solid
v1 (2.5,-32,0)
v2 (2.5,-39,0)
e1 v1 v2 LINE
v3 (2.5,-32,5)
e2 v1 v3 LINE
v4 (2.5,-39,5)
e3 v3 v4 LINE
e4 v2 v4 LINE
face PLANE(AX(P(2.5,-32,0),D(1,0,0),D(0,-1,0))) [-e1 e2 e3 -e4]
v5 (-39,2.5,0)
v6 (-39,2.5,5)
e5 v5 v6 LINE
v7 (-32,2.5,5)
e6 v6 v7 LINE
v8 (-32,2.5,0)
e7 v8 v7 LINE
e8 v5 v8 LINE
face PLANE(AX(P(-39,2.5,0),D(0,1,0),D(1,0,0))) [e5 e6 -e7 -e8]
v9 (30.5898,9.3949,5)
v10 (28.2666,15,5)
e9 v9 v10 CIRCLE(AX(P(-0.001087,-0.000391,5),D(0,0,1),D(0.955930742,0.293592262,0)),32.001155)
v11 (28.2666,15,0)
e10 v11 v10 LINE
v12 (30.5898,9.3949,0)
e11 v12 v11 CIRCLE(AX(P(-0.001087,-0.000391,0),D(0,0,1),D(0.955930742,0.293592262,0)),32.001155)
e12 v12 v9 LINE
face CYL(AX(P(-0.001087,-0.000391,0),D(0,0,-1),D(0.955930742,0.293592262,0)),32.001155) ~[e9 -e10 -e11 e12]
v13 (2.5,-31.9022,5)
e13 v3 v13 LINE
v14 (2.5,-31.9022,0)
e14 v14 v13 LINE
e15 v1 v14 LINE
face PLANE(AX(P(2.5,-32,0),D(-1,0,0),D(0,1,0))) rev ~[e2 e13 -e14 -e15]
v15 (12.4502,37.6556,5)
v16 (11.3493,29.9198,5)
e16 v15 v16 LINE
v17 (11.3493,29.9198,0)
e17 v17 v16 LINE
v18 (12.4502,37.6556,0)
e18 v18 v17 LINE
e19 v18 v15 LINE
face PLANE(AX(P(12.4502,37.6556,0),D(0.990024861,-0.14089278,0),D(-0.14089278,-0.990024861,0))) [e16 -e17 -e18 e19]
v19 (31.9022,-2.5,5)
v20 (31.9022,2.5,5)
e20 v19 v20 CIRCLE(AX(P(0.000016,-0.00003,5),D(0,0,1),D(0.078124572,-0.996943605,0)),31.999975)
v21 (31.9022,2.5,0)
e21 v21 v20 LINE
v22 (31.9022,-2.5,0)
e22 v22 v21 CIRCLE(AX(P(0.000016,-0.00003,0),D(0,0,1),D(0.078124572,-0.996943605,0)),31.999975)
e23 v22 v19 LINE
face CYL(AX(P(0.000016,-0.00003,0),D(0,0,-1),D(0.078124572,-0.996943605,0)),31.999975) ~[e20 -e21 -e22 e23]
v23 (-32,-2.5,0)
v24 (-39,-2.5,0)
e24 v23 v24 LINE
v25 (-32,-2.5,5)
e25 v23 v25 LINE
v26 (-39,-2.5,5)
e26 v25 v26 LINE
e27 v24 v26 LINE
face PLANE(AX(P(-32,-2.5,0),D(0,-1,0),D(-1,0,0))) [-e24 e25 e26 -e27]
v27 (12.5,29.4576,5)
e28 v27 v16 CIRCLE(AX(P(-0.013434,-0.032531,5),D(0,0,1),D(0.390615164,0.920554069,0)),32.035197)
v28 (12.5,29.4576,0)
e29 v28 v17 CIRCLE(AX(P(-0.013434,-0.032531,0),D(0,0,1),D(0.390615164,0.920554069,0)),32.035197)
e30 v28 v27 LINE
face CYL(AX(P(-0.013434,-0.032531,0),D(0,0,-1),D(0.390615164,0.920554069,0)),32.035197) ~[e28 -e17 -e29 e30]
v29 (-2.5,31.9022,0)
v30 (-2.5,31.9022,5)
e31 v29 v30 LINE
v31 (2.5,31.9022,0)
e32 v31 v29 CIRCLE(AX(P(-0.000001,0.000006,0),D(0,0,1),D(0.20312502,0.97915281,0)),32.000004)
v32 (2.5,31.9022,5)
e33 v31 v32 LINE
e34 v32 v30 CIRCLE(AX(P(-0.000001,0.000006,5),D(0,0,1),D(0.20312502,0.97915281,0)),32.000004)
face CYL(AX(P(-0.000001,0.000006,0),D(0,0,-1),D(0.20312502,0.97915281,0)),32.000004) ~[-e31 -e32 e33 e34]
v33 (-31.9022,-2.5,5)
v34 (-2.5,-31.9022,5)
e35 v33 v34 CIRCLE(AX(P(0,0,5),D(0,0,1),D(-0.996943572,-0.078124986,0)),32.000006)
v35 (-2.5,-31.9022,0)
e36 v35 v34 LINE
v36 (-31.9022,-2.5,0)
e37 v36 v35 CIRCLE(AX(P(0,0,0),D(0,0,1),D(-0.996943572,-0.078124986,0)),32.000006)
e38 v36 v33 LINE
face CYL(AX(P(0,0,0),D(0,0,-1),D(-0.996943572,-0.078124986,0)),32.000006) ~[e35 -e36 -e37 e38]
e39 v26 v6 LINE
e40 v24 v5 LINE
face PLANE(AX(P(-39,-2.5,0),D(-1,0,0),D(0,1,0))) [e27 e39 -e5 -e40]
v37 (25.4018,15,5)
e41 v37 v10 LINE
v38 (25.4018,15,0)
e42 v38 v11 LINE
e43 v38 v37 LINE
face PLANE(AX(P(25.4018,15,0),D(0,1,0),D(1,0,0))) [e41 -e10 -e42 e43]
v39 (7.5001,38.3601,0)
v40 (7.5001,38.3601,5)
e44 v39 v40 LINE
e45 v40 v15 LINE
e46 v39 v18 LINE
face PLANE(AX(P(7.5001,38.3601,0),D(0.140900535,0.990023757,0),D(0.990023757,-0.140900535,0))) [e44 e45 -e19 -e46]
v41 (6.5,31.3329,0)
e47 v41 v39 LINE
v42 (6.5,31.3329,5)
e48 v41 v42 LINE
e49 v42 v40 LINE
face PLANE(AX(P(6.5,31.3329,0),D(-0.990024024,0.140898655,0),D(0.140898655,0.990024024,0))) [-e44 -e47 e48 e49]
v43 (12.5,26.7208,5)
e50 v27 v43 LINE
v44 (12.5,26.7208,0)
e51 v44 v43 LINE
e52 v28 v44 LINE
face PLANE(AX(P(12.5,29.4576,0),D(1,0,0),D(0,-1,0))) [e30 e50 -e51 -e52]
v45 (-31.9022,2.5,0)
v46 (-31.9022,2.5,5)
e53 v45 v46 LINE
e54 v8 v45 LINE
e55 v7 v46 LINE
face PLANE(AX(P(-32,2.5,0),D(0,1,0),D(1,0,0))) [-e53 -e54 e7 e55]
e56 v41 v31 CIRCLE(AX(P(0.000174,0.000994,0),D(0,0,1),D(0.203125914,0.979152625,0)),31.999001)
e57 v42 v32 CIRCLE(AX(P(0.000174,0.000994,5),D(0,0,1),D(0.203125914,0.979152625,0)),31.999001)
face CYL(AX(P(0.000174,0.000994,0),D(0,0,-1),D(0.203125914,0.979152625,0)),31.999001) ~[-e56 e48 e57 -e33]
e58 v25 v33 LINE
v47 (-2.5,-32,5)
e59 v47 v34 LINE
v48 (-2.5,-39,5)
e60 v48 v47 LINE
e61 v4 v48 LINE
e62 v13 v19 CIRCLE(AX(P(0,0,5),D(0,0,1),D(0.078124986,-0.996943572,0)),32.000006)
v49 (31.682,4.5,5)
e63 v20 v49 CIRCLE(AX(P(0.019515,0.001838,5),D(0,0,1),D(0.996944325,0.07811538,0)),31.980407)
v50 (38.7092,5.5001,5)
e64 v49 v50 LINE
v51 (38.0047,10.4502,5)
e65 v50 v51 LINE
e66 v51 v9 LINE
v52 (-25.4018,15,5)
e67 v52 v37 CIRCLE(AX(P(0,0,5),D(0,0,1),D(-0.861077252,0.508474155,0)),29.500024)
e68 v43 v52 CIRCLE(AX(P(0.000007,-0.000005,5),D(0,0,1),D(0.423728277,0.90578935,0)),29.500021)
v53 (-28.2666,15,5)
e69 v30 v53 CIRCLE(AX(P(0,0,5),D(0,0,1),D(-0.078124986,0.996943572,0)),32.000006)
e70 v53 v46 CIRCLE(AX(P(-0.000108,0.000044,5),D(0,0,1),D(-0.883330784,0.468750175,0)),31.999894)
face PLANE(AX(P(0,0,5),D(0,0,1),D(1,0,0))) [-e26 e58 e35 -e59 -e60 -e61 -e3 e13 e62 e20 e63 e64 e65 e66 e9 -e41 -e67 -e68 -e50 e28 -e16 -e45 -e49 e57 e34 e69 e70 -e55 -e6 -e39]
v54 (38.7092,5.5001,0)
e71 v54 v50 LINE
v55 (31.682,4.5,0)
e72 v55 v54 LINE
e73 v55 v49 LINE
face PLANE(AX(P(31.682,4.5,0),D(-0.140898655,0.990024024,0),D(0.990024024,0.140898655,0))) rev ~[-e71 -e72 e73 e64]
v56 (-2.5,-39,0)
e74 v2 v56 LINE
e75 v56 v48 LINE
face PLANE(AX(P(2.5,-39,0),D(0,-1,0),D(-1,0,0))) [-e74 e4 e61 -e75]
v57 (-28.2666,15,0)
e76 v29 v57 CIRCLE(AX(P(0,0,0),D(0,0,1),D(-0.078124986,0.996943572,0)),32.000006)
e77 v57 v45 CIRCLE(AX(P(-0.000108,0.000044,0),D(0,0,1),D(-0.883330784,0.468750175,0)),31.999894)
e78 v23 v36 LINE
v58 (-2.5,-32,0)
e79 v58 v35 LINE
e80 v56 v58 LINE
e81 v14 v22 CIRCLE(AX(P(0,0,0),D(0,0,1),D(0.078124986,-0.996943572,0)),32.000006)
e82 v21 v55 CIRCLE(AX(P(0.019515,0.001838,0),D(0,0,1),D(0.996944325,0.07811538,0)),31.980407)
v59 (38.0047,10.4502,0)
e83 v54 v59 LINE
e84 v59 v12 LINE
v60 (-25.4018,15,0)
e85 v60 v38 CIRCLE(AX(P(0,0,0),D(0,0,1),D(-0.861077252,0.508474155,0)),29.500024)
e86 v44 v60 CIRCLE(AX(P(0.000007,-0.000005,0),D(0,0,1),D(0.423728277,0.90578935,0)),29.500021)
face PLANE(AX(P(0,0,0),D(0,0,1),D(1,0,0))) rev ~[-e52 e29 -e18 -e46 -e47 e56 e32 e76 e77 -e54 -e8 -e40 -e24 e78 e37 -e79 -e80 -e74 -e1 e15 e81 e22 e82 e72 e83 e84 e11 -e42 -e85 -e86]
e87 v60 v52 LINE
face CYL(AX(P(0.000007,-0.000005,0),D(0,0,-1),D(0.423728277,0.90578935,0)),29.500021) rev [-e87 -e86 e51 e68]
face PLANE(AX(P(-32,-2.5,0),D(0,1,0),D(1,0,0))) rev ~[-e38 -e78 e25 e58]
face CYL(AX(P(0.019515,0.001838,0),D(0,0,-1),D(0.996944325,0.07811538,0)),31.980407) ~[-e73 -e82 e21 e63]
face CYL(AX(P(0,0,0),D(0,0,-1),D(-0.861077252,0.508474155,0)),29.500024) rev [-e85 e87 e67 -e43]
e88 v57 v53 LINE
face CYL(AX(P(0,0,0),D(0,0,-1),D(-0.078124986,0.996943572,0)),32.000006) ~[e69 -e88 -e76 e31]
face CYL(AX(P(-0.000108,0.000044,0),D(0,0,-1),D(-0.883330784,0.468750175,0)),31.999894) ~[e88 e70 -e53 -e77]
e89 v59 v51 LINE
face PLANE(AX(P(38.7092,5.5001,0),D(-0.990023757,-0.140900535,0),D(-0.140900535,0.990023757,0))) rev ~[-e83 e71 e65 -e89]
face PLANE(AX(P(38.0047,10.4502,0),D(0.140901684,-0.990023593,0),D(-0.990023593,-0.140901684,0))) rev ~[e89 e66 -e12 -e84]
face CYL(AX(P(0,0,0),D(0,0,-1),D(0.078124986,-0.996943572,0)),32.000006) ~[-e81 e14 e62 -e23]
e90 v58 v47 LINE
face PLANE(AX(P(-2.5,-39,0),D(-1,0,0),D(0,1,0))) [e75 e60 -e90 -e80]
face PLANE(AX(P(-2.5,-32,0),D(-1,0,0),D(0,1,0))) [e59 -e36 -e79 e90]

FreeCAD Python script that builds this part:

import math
import FreeCAD as App
import Part
import Sketcher
Q = App.Units.Quantity

doc = App.newDocument("Part")
params = doc.addObject("Spreadsheet::Sheet", "Params")
for row, (alias, value) in enumerate([
    ("sketch1_width", "5 mm"),
    ("sketch1_length", "5 mm"),
    ("sketch1_radius", "32 mm"),
    ("sketch1_radius2", "29.5 mm"),
    ("pad1_length", "5 mm"),
], start=1):
    params.set(f"A{row}", alias)
    params.set(f"B{row}", "=" + value)
    params.setAlias(f"B{row}", alias)

body = doc.addObject("PartDesign::Body", "Body")

# Sketch on XY plane
sketch1 = doc.addObject("Sketcher::SketchObject", "Sketch")
body.addObject(sketch1)
sketch1.AttachmentSupport = (doc.XY_Plane, [""])
sketch1.MapMode = "FlatFace"
sketch1.addGeometry([
    Part.ArcOfCircle(Part.Circle(App.Vector(0, 0, 0), App.Vector(0, 0, 1), 29.5), math.radians(149), math.radians(391)),  # 0
    Part.ArcOfCircle(Part.Circle(App.Vector(0, 0, 0), App.Vector(0, 0, 1), 29.5), math.radians(65), math.radians(149)),  # 1
    Part.LineSegment(App.Vector(12.5, 26.7, 0), App.Vector(12.5, 29.5, 0)),  # 2
    Part.ArcOfCircle(Part.Circle(App.Vector(0, 0, 0), App.Vector(0, 0, 1), 32), math.radians(67.01), math.radians(69.23)),  # 3
    Part.LineSegment(App.Vector(11.3, 29.9, 0), App.Vector(12.5, 37.7, 0)),  # 4
    Part.LineSegment(App.Vector(12.5, 37.7, 0), App.Vector(7.5, 38.4, 0)),  # 5
    Part.LineSegment(App.Vector(7.5, 38.4, 0), App.Vector(6.5, 31.3, 0)),  # 6
    Part.ArcOfCircle(Part.Circle(App.Vector(0, 0, 0), App.Vector(0, 0, 1), 32), math.radians(78.28), math.radians(85.52)),  # 7
    Part.ArcOfCircle(Part.Circle(App.Vector(0, 0, 0), App.Vector(0, 0, 1), 32), math.radians(85.52), math.radians(94.48)),  # 8
    Part.ArcOfCircle(Part.Circle(App.Vector(0, 0, 0), App.Vector(0, 0, 1), 32), math.radians(94), math.radians(152)),  # 9
    Part.ArcOfCircle(Part.Circle(App.Vector(0, 0, 0), App.Vector(0, 0, 1), 32), math.radians(152), math.radians(176)),  # 10
    Part.LineSegment(App.Vector(-31.9, 2.5, 0), App.Vector(-39, 2.5, 0)),  # 11
    Part.LineSegment(App.Vector(-39, 2.5, 0), App.Vector(-39, -2.5, 0)),  # 12
    Part.LineSegment(App.Vector(-39, -2.5, 0), App.Vector(-31.9, -2.5, 0)),  # 13
    Part.ArcOfCircle(Part.Circle(App.Vector(0, 0, 0), App.Vector(0, 0, 1), 32), math.radians(-176), math.radians(-94)),  # 14
    Part.LineSegment(App.Vector(-2.5, -31.9, 0), App.Vector(-2.5, -39, 0)),  # 15
    Part.LineSegment(App.Vector(-2.5, -39, 0), App.Vector(2.5, -39, 0)),  # 16
    Part.LineSegment(App.Vector(2.5, -39, 0), App.Vector(2.5, -31.9, 0)),  # 17
    Part.ArcOfCircle(Part.Circle(App.Vector(0, 0, 0), App.Vector(0, 0, 1), 32), math.radians(-86), math.radians(-4)),  # 18
    Part.ArcOfCircle(Part.Circle(App.Vector(0, 0, 0), App.Vector(0, 0, 1), 32), math.radians(-4.48), math.radians(4.48)),  # 19
    Part.ArcOfCircle(Part.Circle(App.Vector(0, 0, 0), App.Vector(0, 0, 1), 32), math.radians(4.48), math.radians(8.09)),  # 20
    Part.LineSegment(App.Vector(31.7, 4.5, 0), App.Vector(38.7, 5.5, 0)),  # 21
    Part.LineSegment(App.Vector(38.7, 5.5, 0), App.Vector(38, 10.5, 0)),  # 22
    Part.LineSegment(App.Vector(38, 10.5, 0), App.Vector(30.6, 9.4, 0)),  # 23
    Part.ArcOfCircle(Part.Circle(App.Vector(0, 0, 0), App.Vector(0, 0, 1), 32), math.radians(17.07), math.radians(27.95)),  # 24
    Part.LineSegment(App.Vector(28.3, 15, 0), App.Vector(25.4, 15, 0)),  # 25
], False)
sketch1.addConstraint([
    Sketcher.Constraint("Tangent", 0, 1, 1, 2),
    Sketcher.Constraint("Coincident", 1, 1, 2, 1),
    Sketcher.Constraint("Coincident", 2, 2, 3, 1),
    Sketcher.Constraint("Coincident", 3, 2, 4, 1),
    Sketcher.Constraint("Coincident", 4, 2, 5, 1),
    Sketcher.Constraint("Coincident", 5, 2, 6, 1),
    Sketcher.Constraint("Coincident", 6, 2, 7, 1),
    Sketcher.Constraint("Tangent", 7, 2, 8, 1),
    Sketcher.Constraint("Tangent", 8, 2, 9, 1),
    Sketcher.Constraint("Tangent", 9, 2, 10, 1),
    Sketcher.Constraint("Coincident", 10, 2, 11, 1),
    Sketcher.Constraint("Coincident", 11, 2, 12, 1),
    Sketcher.Constraint("Coincident", 12, 2, 13, 1),
    Sketcher.Constraint("Coincident", 13, 2, 14, 1),
    Sketcher.Constraint("Coincident", 14, 2, 15, 1),
    Sketcher.Constraint("Coincident", 15, 2, 16, 1),
    Sketcher.Constraint("Coincident", 16, 2, 17, 1),
    Sketcher.Constraint("Coincident", 17, 2, 18, 1),
    Sketcher.Constraint("Tangent", 18, 2, 19, 1),
    Sketcher.Constraint("Tangent", 19, 2, 20, 1),
    Sketcher.Constraint("Coincident", 20, 2, 21, 1),
    Sketcher.Constraint("Coincident", 21, 2, 22, 1),
    Sketcher.Constraint("Coincident", 22, 2, 23, 1),
    Sketcher.Constraint("Coincident", 23, 2, 24, 1),
    Sketcher.Constraint("Coincident", 24, 2, 25, 1),
    Sketcher.Constraint("Coincident", 25, 2, 0, 2),
    Sketcher.Constraint("Vertical", 2),
    Sketcher.Constraint("Horizontal", 11),
    Sketcher.Constraint("Vertical", 12),
    Sketcher.Constraint("Horizontal", 13),
    Sketcher.Constraint("Vertical", 15),
    Sketcher.Constraint("Horizontal", 16),
    Sketcher.Constraint("Vertical", 17),
    Sketcher.Constraint("Horizontal", 25),
    Sketcher.Constraint("Coincident", 0, 3, -1, 1),
    Sketcher.Constraint("Coincident", 8, 3, -1, 1),
    Sketcher.Constraint("Coincident", 10, 3, -1, 1),
    Sketcher.Constraint("Coincident", 14, 3, -1, 1),
    Sketcher.Constraint("Coincident", 18, 3, -1, 1),
    Sketcher.Constraint("Equal", 0, 1),
    Sketcher.Constraint("Equal", 10, 14),
    Sketcher.Constraint("Equal", 14, 18),
    Sketcher.Constraint("Equal", 18, 19),
    Sketcher.Constraint("Symmetric", 9, 2, 24, 2, -2),
    Sketcher.Constraint("PointOnObject", 7, 3, -2),
    Sketcher.Constraint("Perpendicular", 4, 5),
    Sketcher.Constraint("Perpendicular", 5, 6),
    Sketcher.Constraint("Perpendicular", 21, 22),
    Sketcher.Constraint("Perpendicular", 22, 23),
    Sketcher.Constraint("Horizontal", 7, 2, 8, 2),
    Sketcher.Constraint("Horizontal", 0, 1, 9, 2),
    Sketcher.Constraint("Horizontal", 14, 2, 17, 2),
    Sketcher.Constraint("Horizontal", 13, 2, 18, 2),
    Sketcher.Constraint("Horizontal", 11, 2, 19, 2),
    Sketcher.Constraint("Vertical", 10, 2, 13, 2),
    Sketcher.Constraint("Vertical", 8, 2, 14, 2),
    Sketcher.Constraint("Equal", 16, 12),
    Sketcher.Constraint("Equal", 13, 15),
    Sketcher.Constraint("Equal", 6, 21),
    Sketcher.Constraint("Equal", 5, 22),
    Sketcher.Constraint("DistanceX", 16, 1, 16, 2, Q("5 mm")),
    Sketcher.Constraint("Distance", 5, Q("5 mm")),
    Sketcher.Constraint("Angle", 4, Q("81.9005 deg")),
    Sketcher.Constraint("Angle", 21, Q("8.0999 deg")),
    Sketcher.Constraint("Radius", 8, Q("32 mm")),
    Sketcher.Constraint("DistanceX", 5, 2, 2, 2, Q("5 mm")),
    Sketcher.Constraint("DistanceX", 7, 2, 5, 2, Q("5 mm")),
    Sketcher.Constraint("Radius", 0, Q("29.5 mm")),
    Sketcher.Constraint("Distance", 6, Q("7.098 mm")),
    Sketcher.Constraint("DistanceX", 11, 2, 11, 1, Q("7.0978 mm")),
    Sketcher.Constraint("DistanceY", -1, 1, 0, 1, Q("15 mm")),
    Sketcher.Constraint("DistanceY", 19, 2, 20, 2, Q("2 mm")),
    Sketcher.Constraint("Radius", 3, Q("32.0352 mm")),
    Sketcher.Constraint("Radius", 20, Q("31.9804 mm")),
    Sketcher.Constraint("Radius", 24, Q("32.0012 mm")),
    Sketcher.Constraint("DistanceY", 2, 1, 2, 2, Q("2.7368 mm")),
    Sketcher.Constraint("DistanceX", 24, 3, -1, 1, Q("0.001 mm")),
    Sketcher.Constraint("DistanceY", 1, 1, 3, 2, Q("3.199 mm")),
])
sketch1.setExpression("Constraints[60]", "Params.sketch1_width")
sketch1.setExpression("Constraints[61]", "Params.sketch1_length")
sketch1.setExpression("Constraints[64]", "Params.sketch1_radius")
sketch1.setExpression("Constraints[67]", "Params.sketch1_radius2")
pad1 = doc.addObject("PartDesign::Pad", "Pad")
body.addObject(pad1)
pad1.Profile = sketch1
pad1.setExpression("Length", "Params.pad1_length")

doc.recompute()
